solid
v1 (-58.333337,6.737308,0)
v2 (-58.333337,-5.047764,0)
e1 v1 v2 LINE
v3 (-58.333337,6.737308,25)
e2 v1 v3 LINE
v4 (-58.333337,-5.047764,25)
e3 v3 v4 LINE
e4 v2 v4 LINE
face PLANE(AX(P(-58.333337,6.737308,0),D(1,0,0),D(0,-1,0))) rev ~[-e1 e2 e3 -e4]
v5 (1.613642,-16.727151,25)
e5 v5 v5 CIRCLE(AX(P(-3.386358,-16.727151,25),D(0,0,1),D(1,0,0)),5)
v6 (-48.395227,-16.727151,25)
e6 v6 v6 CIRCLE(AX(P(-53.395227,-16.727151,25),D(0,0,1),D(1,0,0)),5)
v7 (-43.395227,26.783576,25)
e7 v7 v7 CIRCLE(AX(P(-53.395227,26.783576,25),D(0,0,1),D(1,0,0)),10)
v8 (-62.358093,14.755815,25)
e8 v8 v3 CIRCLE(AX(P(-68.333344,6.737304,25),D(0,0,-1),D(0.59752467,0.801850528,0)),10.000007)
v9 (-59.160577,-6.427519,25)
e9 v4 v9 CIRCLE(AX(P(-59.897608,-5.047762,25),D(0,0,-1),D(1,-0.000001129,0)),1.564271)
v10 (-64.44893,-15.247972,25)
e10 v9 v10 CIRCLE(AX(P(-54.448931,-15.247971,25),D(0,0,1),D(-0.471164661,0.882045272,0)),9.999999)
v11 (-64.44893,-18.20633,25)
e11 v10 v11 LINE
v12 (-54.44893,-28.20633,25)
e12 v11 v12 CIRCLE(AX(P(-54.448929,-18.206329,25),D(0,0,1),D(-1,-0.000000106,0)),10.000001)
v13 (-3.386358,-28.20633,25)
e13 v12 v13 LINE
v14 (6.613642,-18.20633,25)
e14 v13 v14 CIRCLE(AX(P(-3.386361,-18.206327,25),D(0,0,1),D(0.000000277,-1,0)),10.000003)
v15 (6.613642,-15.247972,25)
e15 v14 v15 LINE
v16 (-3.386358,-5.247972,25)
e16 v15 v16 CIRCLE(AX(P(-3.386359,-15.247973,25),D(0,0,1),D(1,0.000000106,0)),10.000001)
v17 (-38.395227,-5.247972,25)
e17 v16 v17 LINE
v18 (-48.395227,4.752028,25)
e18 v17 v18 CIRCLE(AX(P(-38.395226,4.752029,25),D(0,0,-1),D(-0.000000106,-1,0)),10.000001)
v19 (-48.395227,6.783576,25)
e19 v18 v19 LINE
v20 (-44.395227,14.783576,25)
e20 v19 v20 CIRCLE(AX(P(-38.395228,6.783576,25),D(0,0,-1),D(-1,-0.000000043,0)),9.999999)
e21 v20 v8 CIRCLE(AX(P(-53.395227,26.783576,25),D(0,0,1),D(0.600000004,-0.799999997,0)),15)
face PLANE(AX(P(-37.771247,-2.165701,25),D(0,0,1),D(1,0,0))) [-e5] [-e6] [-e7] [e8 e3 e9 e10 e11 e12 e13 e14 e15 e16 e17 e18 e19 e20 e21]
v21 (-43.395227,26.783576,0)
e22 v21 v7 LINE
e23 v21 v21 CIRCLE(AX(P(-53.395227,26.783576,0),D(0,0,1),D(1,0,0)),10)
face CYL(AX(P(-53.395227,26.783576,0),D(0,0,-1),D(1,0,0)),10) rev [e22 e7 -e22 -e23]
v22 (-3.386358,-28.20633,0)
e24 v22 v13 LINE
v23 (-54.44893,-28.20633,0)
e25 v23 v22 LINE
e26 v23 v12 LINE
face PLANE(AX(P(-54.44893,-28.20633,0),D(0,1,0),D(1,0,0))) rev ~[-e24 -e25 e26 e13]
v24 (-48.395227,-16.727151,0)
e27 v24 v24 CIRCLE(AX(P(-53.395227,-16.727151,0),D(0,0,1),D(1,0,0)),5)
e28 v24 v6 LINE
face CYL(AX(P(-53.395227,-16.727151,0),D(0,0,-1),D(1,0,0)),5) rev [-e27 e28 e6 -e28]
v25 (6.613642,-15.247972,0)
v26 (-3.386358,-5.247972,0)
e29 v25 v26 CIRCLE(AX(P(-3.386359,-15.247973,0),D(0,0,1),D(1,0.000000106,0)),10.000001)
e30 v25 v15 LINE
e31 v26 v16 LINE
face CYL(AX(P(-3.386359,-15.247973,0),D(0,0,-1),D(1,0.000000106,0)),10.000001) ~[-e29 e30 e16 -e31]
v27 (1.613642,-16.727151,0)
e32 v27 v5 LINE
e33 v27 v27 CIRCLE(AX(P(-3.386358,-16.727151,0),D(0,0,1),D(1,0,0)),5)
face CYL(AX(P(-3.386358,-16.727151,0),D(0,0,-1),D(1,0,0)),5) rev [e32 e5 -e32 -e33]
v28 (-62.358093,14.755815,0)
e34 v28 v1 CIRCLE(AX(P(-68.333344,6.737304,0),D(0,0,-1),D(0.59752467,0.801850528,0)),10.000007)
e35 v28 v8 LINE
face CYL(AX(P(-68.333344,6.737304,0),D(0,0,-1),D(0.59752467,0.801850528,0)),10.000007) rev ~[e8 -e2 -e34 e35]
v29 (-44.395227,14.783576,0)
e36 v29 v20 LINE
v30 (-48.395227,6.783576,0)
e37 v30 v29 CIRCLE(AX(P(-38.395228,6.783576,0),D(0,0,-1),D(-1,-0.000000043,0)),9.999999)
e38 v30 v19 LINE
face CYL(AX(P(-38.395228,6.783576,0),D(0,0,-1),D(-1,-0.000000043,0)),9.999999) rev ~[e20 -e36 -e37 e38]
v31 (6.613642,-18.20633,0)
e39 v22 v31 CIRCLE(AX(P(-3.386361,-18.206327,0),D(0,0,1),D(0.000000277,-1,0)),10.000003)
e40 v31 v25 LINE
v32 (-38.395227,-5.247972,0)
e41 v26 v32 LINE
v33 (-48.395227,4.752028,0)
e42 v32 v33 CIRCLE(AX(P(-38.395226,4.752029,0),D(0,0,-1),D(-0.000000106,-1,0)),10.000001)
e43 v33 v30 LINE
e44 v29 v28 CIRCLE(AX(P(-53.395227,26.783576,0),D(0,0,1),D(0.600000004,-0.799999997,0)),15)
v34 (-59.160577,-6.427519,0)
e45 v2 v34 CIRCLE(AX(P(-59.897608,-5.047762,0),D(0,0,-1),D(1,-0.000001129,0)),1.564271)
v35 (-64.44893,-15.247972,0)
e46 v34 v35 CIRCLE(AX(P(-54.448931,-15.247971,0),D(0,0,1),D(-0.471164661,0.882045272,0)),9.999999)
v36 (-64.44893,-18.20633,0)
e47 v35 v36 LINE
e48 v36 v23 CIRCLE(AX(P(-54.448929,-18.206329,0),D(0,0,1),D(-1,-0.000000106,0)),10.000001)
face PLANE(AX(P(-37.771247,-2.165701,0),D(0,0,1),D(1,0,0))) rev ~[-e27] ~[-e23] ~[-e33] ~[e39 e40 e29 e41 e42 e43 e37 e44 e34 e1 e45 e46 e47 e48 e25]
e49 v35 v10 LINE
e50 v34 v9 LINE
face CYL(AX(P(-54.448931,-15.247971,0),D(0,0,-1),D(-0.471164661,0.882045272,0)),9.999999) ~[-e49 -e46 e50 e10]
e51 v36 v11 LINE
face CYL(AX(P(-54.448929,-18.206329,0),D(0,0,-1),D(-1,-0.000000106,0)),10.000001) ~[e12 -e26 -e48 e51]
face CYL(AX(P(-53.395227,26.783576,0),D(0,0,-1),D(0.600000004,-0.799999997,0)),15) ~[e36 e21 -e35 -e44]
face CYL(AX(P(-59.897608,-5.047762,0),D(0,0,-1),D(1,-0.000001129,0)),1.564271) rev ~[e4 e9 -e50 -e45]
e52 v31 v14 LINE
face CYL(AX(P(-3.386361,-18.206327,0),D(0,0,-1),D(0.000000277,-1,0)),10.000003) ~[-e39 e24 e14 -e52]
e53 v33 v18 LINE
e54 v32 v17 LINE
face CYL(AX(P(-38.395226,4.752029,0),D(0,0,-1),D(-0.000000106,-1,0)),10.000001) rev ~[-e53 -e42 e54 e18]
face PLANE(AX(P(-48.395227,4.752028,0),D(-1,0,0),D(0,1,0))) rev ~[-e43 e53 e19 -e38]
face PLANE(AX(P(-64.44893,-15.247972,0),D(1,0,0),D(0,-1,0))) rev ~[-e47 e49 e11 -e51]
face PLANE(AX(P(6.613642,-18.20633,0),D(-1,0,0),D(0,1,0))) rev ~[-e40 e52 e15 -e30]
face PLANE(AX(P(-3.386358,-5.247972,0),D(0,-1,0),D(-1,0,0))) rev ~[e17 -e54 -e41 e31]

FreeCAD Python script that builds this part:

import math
import FreeCAD as App
import Part
import Sketcher

doc = App.newDocument("Part")
body = doc.addObject("PartDesign::Body", "Body")

# Sketch on XY plane
sketch1 = body.newObject("Sketcher::SketchObject", "Sketch")
sketch1.AttachmentSupport = (doc.getObject("XY_Plane"), [""])
sketch1.MapMode = "FlatFace"
sketch1.addGeometry(Part.LineSegment(App.Vector(-3.4, -5.2, 0), App.Vector(-38.4, -5.2, 0)), False)
sketch1.addGeometry(Part.ArcOfCircle(Part.Circle(App.Vector(-38.4, 4.8, 0), App.Vector(0, 0, 1), 10), math.radians(-180), math.radians(-90)), False)
sketch1.addGeometry(Part.LineSegment(App.Vector(-48.4, 4.8, 0), App.Vector(-48.4, 6.8, 0)), False)
sketch1.addGeometry(Part.ArcOfCircle(Part.Circle(App.Vector(-38.4, 6.8, 0), App.Vector(0, 0, 1), 10), math.radians(127), math.radians(180)), False)
sketch1.addGeometry(Part.ArcOfCircle(Part.Circle(App.Vector(-53.4, 26.8, 0), App.Vector(0, 0, 1), 15), math.radians(-53), math.radians(233)), False)
sketch1.addGeometry(Part.ArcOfCircle(Part.Circle(App.Vector(-68.3, 6.7, 0), App.Vector(0, 0, 1), 10), math.radians(0), math.radians(53)), False)
sketch1.addGeometry(Part.LineSegment(App.Vector(-58.3, 6.7, 0), App.Vector(-58.3, -5, 0)), False)
sketch1.addGeometry(Part.ArcOfCircle(Part.Circle(App.Vector(-59.9, -5, 0), App.Vector(0, 0, 1), 1.6), math.radians(-62), math.radians(0)), False)
sketch1.addGeometry(Part.ArcOfCircle(Part.Circle(App.Vector(-54.4, -15.2, 0), App.Vector(0, 0, 1), 10), math.radians(118), math.radians(180)), False)
sketch1.addGeometry(Part.LineSegment(App.Vector(-64.4, -15.2, 0), App.Vector(-64.4, -18.2, 0)), False)
sketch1.addGeometry(Part.ArcOfCircle(Part.Circle(App.Vector(-54.4, -18.2, 0), App.Vector(0, 0, 1), 10), math.radians(-180), math.radians(-90)), False)
sketch1.addGeometry(Part.LineSegment(App.Vector(-54.4, -28.2, 0), App.Vector(-3.4, -28.2, 0)), False)
sketch1.addGeometry(Part.ArcOfCircle(Part.Circle(App.Vector(-3.4, -18.2, 0), App.Vector(0, 0, 1), 10), math.radians(-90), math.radians(0)), False)
sketch1.addGeometry(Part.LineSegment(App.Vector(6.6, -18.2, 0), App.Vector(6.6, -15.2, 0)), False)
sketch1.addGeometry(Part.ArcOfCircle(Part.Circle(App.Vector(-3.4, -15.2, 0), App.Vector(0, 0, 1), 10), math.radians(0), math.radians(90)), False)
sketch1.addGeometry(Part.Circle(App.Vector(-53.4, -16.7, 0), App.Vector(0, 0, 1), 5), False)
sketch1.addGeometry(Part.Circle(App.Vector(-3.4, -16.7, 0), App.Vector(0, 0, 1), 5), False)
sketch1.addGeometry(Part.Circle(App.Vector(-53.4, 26.8, 0), App.Vector(0, 0, 1), 10), False)
sketch1.addConstraint(Sketcher.Constraint("Tangent", 0, 2, 1, 2))
sketch1.addConstraint(Sketcher.Constraint("Tangent", 1, 1, 2, 1))
sketch1.addConstraint(Sketcher.Constraint("Tangent", 2, 2, 3, 2))
sketch1.addConstraint(Sketcher.Constraint("Tangent", 3, 1, 4, 1))
sketch1.addConstraint(Sketcher.Constraint("Tangent", 4, 2, 5, 2))
sketch1.addConstraint(Sketcher.Constraint("Tangent", 5, 1, 6, 1))
sketch1.addConstraint(Sketcher.Constraint("Tangent", 6, 2, 7, 2))
sketch1.addConstraint(Sketcher.Constraint("Tangent", 7, 1, 8, 1))
sketch1.addConstraint(Sketcher.Constraint("Tangent", 8, 2, 9, 1))
sketch1.addConstraint(Sketcher.Constraint("Tangent", 9, 2, 10, 1))
sketch1.addConstraint(Sketcher.Constraint("Tangent", 10, 2, 11, 1))
sketch1.addConstraint(Sketcher.Constraint("Tangent", 11, 2, 12, 1))
sketch1.addConstraint(Sketcher.Constraint("Tangent", 12, 2, 13, 1))
sketch1.addConstraint(Sketcher.Constraint("Tangent", 13, 2, 14, 1))
sketch1.addConstraint(Sketcher.Constraint("Tangent", 14, 2, 0, 1))
sketch1.addConstraint(Sketcher.Constraint("Horizontal", 0))
sketch1.addConstraint(Sketcher.Constraint("Vertical", 2))
sketch1.addConstraint(Sketcher.Constraint("Vertical", 6))
sketch1.addConstraint(Sketcher.Constraint("Vertical", 9))
sketch1.addConstraint(Sketcher.Constraint("Horizontal", 11))
sketch1.addConstraint(Sketcher.Constraint("Vertical", 13))
sketch1.addConstraint(Sketcher.Constraint("Coincident", 17, 3, 4, 3))
sketch1.addConstraint(Sketcher.Constraint("Equal", 1, 3))
sketch1.addConstraint(Sketcher.Constraint("Equal", 3, 8))
sketch1.addConstraint(Sketcher.Constraint("Equal", 8, 10))
sketch1.addConstraint(Sketcher.Constraint("Equal", 10, 12))
sketch1.addConstraint(Sketcher.Constraint("Equal", 12, 14))
sketch1.addConstraint(Sketcher.Constraint("Equal", 15, 16))
sketch1.addConstraint(Sketcher.Constraint("Equal", 14, 17))
sketch1.addConstraint(Sketcher.Constraint("Horizontal", 8, 3, 14, 3))
sketch1.addConstraint(Sketcher.Constraint("Horizontal", 15, 3, 16, 3))
sketch1.addConstraint(Sketcher.Constraint("Vertical", 4, 3, 15, 3))
sketch1.addConstraint(Sketcher.Constraint("Vertical", 14, 3, 16, 3))
sketch1.addConstraint(Sketcher.Constraint("Diameter", 15, 10.0))
sketch1.addConstraint(Sketcher.Constraint("Diameter", 17, 20.0))
sketch1.addConstraint(Sketcher.Constraint("Radius", 4, 15.0))
sketch1.addConstraint(Sketcher.Constraint("DistanceX", 4, 3, 3, 3, 14.999999))
sketch1.addConstraint(Sketcher.Constraint("Radius", 7, 1.564271))
sketch1.addConstraint(Sketcher.Constraint("Radius", 5, 10.000007))
sketch1.addConstraint(Sketcher.Constraint("DistanceX", 0, 2, 0, 1, 35.008869))
sketch1.addConstraint(Sketcher.Constraint("DistanceX", 11, 1, 11, 2, 51.062572))
sketch1.addConstraint(Sketcher.Constraint("DistanceY", 9, 2, 9, 1, 2.958358))
sketch1.addConstraint(Sketcher.Constraint("DistanceY", 2, 1, 2, 2, 2.031548))
sketch1.addConstraint(Sketcher.Constraint("DistanceY", 6, 2, 6, 1, 11.785072))
sketch1.addConstraint(Sketcher.Constraint("DistanceY", -1, 1, 1, 3, 4.752029))
sketch1.addConstraint(Sketcher.Constraint("DistanceX", 8, 3, -1, 1, 54.448931))
sketch1.addConstraint(Sketcher.Constraint("DistanceY", 15, 3, -1, 1, 16.727151))
pad1 = body.newObject("PartDesign::Pad", "Pad")
pad1.Profile = sketch1
pad1.Length = 25

# Sketch on XY plane
sketch2 = body.newObject("Sketcher::SketchObject", "Sketch001")
sketch2.AttachmentSupport = (doc.getObject("XY_Plane"), [""])
sketch2.MapMode = "FlatFace"
sketch2.addGeometry(Part.LineSegment(App.Vector(-3.4, -5.2, 0), App.Vector(-38.4, -5.2, 0)), False)
sketch2.addGeometry(Part.ArcOfCircle(Part.Circle(App.Vector(-38.4, 4.8, 0), App.Vector(0, 0, 1), 10), math.radians(-180), math.radians(-90)), False)
sketch2.addGeometry(Part.LineSegment(App.Vector(-48.4, 4.8, 0), App.Vector(-48.4, 6.8, 0)), False)
sketch2.addGeometry(Part.ArcOfCircle(Part.Circle(App.Vector(-38.4, 6.8, 0), App.Vector(0, 0, 1), 10), math.radians(127), math.radians(180)), False)
sketch2.addGeometry(Part.ArcOfCircle(Part.Circle(App.Vector(-53.4, 26.8, 0), App.Vector(0, 0, 1), 15), math.radians(-53), math.radians(233)), False)
sketch2.addGeometry(Part.ArcOfCircle(Part.Circle(App.Vector(-68.3, 6.7, 0), App.Vector(0, 0, 1), 10), math.radians(0), math.radians(53)), False)
sketch2.addGeometry(Part.LineSegment(App.Vector(-58.3, 6.7, 0), App.Vector(-58.3, -5, 0)), False)
sketch2.addGeometry(Part.ArcOfCircle(Part.Circle(App.Vector(-59.9, -5, 0), App.Vector(0, 0, 1), 1.6), math.radians(-62), math.radians(0)), False)
sketch2.addGeometry(Part.ArcOfCircle(Part.Circle(App.Vector(-54.4, -15.2, 0), App.Vector(0, 0, 1), 10), math.radians(118), math.radians(180)), False)
sketch2.addGeometry(Part.LineSegment(App.Vector(-64.4, -15.2, 0), App.Vector(-64.4, -18.2, 0)), False)
sketch2.addGeometry(Part.ArcOfCircle(Part.Circle(App.Vector(-54.4, -18.2, 0), App.Vector(0, 0, 1), 10), math.radians(-180), math.radians(-90)), False)
sketch2.addGeometry(Part.LineSegment(App.Vector(-54.4, -28.2, 0), App.Vector(-3.4, -28.2, 0)), False)
sketch2.addGeometry(Part.ArcOfCircle(Part.Circle(App.Vector(-3.4, -18.2, 0), App.Vector(0, 0, 1), 10), math.radians(-90), math.radians(0)), False)
sketch2.addGeometry(Part.LineSegment(App.Vector(6.6, -18.2, 0), App.Vector(6.6, -15.2, 0)), False)
sketch2.addGeometry(Part.ArcOfCircle(Part.Circle(App.Vector(-3.4, -15.2, 0), App.Vector(0, 0, 1), 10), math.radians(0), math.radians(90)), False)
sketch2.addGeometry(Part.Circle(App.Vector(-53.4, -16.7, 0), App.Vector(0, 0, 1), 5), False)
sketch2.addGeometry(Part.Circle(App.Vector(-3.4, -16.7, 0), App.Vector(0, 0, 1), 5), False)
sketch2.addGeometry(Part.Circle(App.Vector(-53.4, 26.8, 0), App.Vector(0, 0, 1), 10), False)
sketch2.addConstraint(Sketcher.Constraint("Tangent", 0, 2, 1, 2))
sketch2.addConstraint(Sketcher.Constraint("Tangent", 1, 1, 2, 1))
sketch2.addConstraint(Sketcher.Constraint("Tangent", 2, 2, 3, 2))
sketch2.addConstraint(Sketcher.Constraint("Tangent", 3, 1, 4, 1))
sketch2.addConstraint(Sketcher.Constraint("Tangent", 4, 2, 5, 2))
sketch2.addConstraint(Sketcher.Constraint("Tangent", 5, 1, 6, 1))
sketch2.addConstraint(Sketcher.Constraint("Tangent", 6, 2, 7, 2))
sketch2.addConstraint(Sketcher.Constraint("Tangent", 7, 1, 8, 1))
sketch2.addConstraint(Sketcher.Constraint("Tangent", 8, 2, 9, 1))
sketch2.addConstraint(Sketcher.Constraint("Tangent", 9, 2, 10, 1))
sketch2.addConstraint(Sketcher.Constraint("Tangent", 10, 2, 11, 1))
sketch2.addConstraint(Sketcher.Constraint("Tangent", 11, 2, 12, 1))
sketch2.addConstraint(Sketcher.Constraint("Tangent", 12, 2, 13, 1))
sketch2.addConstraint(Sketcher.Constraint("Tangent", 13, 2, 14, 1))
sketch2.addConstraint(Sketcher.Constraint("Tangent", 14, 2, 0, 1))
sketch2.addConstraint(Sketcher.Constraint("Horizontal", 0))
sketch2.addConstraint(Sketcher.Constraint("Vertical", 2))
sketch2.addConstraint(Sketcher.Constraint("Vertical", 6))
sketch2.addConstraint(Sketcher.Constraint("Vertical", 9))
sketch2.addConstraint(Sketcher.Constraint("Horizontal", 11))
sketch2.addConstraint(Sketcher.Constraint("Vertical", 13))
sketch2.addConstraint(Sketcher.Constraint("Coincident", 17, 3, 4, 3))
sketch2.addConstraint(Sketcher.Constraint("Equal", 1, 3))
sketch2.addConstraint(Sketcher.Constraint("Equal", 3, 8))
sketch2.addConstraint(Sketcher.Constraint("Equal", 8, 10))
sketch2.addConstraint(Sketcher.Constraint("Equal", 10, 12))
sketch2.addConstraint(Sketcher.Constraint("Equal", 12, 14))
sketch2.addConstraint(Sketcher.Constraint("Equal", 15, 16))
sketch2.addConstraint(Sketcher.Constraint("Equal", 14, 17))
sketch2.addConstraint(Sketcher.Constraint("Horizontal", 8, 3, 14, 3))
sketch2.addConstraint(Sketcher.Constraint("Horizontal", 15, 3, 16, 3))
sketch2.addConstraint(Sketcher.Constraint("Vertical", 4, 3, 15, 3))
sketch2.addConstraint(Sketcher.Constraint("Vertical", 14, 3, 16, 3))
sketch2.addConstraint(Sketcher.Constraint("Diameter", 15, 10.0))
sketch2.addConstraint(Sketcher.Constraint("Diameter", 17, 20.0))
sketch2.addConstraint(Sketcher.Constraint("Radius", 4, 15.0))
sketch2.addConstraint(Sketcher.Constraint("DistanceX", 4, 3, 3, 3, 14.999999))
sketch2.addConstraint(Sketcher.Constraint("Radius", 7, 1.564271))
sketch2.addConstraint(Sketcher.Constraint("Radius", 5, 10.000007))
sketch2.addConstraint(Sketcher.Constraint("DistanceX", 0, 2, 0, 1, 35.008869))
sketch2.addConstraint(Sketcher.Constraint("DistanceX", 11, 1, 11, 2, 51.062572))
sketch2.addConstraint(Sketcher.Constraint("DistanceY", 9, 2, 9, 1, 2.958358))
sketch2.addConstraint(Sketcher.Constraint("DistanceY", 2, 1, 2, 2, 2.031548))
sketch2.addConstraint(Sketcher.Constraint("DistanceY", 6, 2, 6, 1, 11.785072))
sketch2.addConstraint(Sketcher.Constraint("DistanceY", -1, 1, 1, 3, 4.752029))
sketch2.addConstraint(Sketcher.Constraint("DistanceX", 8, 3, -1, 1, 54.448931))
sketch2.addConstraint(Sketcher.Constraint("DistanceY", 15, 3, -1, 1, 16.727151))
pad2 = body.newObject("PartDesign::Pad", "Pad001")
pad2.Profile = sketch2
pad2.Length = 25

doc.recompute()
